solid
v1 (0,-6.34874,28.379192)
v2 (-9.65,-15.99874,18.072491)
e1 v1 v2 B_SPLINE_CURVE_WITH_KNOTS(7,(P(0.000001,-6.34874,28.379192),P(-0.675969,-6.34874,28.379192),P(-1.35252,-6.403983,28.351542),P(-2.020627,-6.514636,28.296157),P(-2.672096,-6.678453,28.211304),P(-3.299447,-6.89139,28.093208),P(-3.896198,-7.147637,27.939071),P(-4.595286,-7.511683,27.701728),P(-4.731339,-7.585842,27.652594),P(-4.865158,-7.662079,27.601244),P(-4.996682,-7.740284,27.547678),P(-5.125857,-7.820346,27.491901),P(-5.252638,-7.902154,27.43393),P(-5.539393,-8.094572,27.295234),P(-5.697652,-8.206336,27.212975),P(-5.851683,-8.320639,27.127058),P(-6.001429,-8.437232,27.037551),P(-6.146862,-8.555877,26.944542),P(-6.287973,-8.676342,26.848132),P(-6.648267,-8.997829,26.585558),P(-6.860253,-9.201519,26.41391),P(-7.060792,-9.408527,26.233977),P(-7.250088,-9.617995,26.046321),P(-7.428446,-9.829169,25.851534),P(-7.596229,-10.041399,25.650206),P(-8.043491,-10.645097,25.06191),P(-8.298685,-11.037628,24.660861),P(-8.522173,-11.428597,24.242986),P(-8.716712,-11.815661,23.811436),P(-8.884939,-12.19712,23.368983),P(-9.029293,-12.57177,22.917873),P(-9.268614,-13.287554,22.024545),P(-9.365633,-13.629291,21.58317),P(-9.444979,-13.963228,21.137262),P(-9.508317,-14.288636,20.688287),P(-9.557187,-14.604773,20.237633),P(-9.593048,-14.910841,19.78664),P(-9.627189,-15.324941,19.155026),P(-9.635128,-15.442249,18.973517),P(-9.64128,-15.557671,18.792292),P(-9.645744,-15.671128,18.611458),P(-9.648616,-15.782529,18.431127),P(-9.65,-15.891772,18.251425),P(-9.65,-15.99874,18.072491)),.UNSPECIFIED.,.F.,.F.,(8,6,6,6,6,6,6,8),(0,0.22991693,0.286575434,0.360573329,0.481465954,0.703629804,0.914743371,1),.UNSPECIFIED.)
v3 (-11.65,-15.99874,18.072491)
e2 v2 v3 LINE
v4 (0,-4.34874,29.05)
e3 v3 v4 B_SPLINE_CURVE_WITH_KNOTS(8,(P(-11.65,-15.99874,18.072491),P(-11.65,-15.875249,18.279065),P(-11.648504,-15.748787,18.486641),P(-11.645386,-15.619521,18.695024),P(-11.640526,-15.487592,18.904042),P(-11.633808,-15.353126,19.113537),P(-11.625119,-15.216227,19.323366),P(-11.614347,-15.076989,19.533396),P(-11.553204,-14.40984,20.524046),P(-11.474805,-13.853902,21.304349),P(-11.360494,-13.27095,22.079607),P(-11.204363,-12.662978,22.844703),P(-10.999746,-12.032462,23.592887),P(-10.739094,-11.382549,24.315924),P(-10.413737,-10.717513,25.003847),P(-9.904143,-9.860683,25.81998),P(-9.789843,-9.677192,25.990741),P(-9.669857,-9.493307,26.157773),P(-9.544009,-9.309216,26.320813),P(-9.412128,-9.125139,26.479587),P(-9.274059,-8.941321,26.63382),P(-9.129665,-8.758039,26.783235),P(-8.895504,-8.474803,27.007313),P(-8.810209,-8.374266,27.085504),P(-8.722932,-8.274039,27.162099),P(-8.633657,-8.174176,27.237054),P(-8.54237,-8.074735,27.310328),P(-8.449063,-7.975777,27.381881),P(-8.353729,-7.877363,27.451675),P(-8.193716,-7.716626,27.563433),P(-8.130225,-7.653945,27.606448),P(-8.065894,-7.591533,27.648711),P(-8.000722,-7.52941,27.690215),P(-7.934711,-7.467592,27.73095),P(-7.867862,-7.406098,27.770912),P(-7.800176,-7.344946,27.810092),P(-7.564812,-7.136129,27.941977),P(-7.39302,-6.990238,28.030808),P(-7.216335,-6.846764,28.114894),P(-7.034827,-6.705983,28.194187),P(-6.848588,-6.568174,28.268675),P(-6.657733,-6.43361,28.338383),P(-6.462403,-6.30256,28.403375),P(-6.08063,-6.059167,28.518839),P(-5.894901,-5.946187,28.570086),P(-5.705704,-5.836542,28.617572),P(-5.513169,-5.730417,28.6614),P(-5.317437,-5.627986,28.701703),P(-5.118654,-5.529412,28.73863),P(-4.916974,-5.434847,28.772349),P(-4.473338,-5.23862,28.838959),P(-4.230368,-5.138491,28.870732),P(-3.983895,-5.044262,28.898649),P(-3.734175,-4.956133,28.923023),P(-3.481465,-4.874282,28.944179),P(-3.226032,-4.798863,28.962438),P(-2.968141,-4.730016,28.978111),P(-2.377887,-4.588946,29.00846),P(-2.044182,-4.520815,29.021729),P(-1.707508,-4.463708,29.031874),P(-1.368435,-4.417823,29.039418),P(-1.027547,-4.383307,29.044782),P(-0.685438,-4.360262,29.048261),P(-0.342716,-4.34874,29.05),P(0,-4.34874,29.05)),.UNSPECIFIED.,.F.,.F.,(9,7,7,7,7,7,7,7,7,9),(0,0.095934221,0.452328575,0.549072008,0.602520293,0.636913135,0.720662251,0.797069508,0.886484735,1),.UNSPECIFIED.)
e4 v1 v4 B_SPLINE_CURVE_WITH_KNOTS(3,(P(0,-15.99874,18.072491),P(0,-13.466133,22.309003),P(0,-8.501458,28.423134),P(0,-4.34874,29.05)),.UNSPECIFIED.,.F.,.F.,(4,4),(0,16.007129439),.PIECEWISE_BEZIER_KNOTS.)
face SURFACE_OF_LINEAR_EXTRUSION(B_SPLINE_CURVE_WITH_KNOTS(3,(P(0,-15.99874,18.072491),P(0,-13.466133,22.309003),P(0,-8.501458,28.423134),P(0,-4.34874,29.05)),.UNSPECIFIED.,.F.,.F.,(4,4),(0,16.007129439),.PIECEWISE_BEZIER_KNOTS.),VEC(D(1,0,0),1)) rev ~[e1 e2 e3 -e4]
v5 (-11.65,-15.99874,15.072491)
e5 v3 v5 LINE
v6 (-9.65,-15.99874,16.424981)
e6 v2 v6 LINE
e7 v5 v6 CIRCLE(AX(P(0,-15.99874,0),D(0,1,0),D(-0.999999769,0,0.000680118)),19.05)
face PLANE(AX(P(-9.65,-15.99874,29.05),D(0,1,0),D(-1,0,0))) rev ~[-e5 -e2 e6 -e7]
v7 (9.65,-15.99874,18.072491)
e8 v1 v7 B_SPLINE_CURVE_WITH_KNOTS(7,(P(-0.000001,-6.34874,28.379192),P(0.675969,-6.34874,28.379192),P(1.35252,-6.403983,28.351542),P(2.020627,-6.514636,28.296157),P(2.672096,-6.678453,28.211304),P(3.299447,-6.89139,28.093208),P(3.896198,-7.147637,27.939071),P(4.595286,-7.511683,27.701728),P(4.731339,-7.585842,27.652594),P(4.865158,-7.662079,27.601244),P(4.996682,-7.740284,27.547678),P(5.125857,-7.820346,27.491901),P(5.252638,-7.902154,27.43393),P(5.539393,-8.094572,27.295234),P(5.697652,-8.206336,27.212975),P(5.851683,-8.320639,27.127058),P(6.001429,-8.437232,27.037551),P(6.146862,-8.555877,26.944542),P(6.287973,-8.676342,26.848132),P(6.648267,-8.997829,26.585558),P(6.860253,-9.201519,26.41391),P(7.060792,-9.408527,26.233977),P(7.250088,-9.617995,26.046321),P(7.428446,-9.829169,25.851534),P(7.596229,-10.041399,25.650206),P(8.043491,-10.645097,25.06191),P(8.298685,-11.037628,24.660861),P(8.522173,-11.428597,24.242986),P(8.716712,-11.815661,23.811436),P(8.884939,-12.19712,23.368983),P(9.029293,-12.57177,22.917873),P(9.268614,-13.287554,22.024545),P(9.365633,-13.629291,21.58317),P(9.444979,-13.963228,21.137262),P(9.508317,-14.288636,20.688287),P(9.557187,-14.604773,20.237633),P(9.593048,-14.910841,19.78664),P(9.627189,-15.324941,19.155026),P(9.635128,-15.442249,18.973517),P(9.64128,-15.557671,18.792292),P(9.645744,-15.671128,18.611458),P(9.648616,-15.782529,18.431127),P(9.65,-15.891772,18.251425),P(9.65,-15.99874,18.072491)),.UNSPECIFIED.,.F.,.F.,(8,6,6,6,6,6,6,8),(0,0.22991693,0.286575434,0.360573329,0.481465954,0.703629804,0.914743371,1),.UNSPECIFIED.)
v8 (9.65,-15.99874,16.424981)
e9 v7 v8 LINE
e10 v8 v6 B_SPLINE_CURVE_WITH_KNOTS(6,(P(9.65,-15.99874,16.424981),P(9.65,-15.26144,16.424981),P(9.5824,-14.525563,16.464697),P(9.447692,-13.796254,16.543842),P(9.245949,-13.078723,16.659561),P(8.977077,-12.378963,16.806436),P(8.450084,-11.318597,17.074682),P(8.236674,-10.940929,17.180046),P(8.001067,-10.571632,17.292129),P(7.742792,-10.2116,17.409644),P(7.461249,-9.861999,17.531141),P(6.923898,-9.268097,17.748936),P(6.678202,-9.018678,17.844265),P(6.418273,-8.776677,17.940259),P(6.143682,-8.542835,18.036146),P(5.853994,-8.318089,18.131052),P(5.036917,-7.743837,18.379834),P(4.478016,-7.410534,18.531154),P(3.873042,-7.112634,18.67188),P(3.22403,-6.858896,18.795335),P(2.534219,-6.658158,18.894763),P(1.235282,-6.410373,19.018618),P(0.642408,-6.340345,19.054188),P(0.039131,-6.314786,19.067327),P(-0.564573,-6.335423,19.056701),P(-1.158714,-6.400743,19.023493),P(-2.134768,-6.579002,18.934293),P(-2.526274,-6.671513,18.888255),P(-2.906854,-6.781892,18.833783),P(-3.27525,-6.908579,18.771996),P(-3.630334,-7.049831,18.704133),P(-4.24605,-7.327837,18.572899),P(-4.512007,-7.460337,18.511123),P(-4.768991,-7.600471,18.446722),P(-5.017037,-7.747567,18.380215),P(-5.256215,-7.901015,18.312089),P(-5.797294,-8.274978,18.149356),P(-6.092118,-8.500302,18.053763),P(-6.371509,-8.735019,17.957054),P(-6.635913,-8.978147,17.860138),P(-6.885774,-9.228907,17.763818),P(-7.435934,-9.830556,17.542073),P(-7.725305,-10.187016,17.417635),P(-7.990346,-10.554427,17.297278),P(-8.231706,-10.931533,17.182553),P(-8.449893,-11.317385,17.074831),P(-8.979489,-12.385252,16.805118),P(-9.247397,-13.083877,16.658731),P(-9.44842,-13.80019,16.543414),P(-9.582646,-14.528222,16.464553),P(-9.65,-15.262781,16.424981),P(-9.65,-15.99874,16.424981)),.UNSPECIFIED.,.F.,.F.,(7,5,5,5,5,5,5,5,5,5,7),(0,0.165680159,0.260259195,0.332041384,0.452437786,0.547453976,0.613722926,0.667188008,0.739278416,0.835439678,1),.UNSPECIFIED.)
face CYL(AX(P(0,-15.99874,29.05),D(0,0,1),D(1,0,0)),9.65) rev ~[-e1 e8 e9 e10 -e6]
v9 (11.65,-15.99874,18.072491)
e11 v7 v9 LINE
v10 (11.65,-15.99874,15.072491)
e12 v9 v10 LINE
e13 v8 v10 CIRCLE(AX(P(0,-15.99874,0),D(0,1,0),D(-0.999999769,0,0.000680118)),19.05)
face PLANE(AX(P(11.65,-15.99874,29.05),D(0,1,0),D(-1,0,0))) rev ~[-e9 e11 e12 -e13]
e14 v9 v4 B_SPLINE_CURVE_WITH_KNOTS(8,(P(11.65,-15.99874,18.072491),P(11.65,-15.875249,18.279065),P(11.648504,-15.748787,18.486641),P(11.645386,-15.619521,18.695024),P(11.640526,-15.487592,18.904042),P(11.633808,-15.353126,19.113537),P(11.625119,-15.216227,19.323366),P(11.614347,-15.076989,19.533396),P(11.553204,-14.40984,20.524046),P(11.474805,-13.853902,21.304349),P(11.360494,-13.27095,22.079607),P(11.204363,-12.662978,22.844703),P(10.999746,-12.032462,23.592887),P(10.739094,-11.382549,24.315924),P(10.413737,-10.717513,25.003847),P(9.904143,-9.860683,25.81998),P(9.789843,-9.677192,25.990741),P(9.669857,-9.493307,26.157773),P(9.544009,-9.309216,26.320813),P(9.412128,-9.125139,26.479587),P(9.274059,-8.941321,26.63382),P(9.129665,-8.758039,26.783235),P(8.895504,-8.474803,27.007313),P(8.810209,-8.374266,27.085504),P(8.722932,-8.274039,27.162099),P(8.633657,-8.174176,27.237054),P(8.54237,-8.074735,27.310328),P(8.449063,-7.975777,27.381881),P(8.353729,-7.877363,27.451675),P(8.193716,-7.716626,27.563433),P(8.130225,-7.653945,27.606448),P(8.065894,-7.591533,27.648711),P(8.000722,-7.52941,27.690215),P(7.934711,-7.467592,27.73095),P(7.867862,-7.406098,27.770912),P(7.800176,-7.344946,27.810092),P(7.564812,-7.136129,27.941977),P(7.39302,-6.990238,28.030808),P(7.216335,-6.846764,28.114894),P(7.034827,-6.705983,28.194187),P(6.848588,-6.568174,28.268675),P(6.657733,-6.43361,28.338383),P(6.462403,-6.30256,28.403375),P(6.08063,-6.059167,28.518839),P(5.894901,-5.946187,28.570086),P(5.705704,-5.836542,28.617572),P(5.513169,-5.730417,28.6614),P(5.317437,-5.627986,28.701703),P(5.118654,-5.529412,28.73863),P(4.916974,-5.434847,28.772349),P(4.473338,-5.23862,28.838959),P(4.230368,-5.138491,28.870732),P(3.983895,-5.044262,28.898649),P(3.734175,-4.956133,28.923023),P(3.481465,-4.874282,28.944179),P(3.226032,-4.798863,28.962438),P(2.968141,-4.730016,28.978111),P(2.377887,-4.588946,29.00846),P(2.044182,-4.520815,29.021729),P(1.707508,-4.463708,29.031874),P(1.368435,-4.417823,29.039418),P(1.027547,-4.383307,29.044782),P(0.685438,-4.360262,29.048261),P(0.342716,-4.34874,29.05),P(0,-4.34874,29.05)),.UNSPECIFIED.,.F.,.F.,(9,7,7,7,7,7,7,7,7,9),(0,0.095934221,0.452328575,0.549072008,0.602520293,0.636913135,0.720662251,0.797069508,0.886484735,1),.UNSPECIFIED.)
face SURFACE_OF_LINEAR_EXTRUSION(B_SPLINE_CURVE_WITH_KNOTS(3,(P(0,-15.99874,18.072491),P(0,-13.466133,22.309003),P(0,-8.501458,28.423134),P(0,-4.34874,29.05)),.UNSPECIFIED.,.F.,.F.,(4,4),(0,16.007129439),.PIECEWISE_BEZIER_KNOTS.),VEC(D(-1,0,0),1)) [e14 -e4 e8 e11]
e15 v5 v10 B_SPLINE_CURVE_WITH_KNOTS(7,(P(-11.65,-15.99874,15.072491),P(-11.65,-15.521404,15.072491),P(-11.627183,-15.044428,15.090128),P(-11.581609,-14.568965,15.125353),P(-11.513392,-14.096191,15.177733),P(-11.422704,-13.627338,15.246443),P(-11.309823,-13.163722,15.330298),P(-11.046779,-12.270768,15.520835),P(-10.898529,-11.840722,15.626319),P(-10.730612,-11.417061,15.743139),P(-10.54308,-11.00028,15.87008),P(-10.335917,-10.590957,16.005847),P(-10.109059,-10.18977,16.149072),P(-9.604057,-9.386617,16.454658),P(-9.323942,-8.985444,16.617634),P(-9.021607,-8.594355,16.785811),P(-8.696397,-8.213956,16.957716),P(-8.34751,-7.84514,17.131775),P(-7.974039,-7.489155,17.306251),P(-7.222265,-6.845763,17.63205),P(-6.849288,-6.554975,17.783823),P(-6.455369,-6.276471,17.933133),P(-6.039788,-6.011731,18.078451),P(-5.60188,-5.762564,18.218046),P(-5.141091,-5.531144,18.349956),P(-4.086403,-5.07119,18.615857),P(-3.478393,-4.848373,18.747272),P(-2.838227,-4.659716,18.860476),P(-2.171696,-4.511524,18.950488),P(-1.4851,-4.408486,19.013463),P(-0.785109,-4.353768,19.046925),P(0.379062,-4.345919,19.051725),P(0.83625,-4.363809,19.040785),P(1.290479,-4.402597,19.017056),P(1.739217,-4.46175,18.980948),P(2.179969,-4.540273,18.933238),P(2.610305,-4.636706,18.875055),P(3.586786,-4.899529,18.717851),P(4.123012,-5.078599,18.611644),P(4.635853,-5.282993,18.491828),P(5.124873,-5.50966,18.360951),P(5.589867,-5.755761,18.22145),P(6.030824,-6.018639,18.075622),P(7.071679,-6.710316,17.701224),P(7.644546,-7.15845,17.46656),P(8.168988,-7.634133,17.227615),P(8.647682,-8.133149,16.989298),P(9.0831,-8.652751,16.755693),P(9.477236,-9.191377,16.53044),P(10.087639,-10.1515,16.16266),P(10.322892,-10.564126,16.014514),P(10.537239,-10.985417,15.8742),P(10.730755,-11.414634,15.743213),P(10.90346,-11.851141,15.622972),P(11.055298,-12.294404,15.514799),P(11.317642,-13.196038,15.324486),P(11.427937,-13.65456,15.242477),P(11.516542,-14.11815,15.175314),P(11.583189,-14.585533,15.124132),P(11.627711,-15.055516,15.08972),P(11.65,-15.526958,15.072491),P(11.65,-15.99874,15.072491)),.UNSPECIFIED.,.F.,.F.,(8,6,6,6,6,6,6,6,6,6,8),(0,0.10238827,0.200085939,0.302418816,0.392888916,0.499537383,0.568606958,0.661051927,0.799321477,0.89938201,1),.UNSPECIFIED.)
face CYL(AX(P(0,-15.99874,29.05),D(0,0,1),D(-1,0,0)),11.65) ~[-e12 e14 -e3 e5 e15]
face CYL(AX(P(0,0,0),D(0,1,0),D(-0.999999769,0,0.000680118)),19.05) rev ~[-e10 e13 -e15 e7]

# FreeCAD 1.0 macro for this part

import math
import FreeCAD as App
import Part
import Sketcher

doc = App.newDocument("Part")
body = doc.addObject("PartDesign::Body", "Body")

sketch1 = body.newObject("Sketcher::SketchObject", "Sketch")
sketch1.AttachmentSupport = (doc.getObject("XZ_Plane"), [""])
sketch1.MapMode = "FlatFace"
sketch1.addGeometry([
    Part.ArcOfCircle(Part.Circle(App.Vector(0, 0, 0), App.Vector(0, 0, 1), 19), math.radians(0), math.radians(180)),
    Part.LineSegment(App.Vector(19, 0, 0), App.Vector(19, 29, 0)),
    Part.LineSegment(App.Vector(19, 29, 0), App.Vector(-19, 29, 0)),
    Part.LineSegment(App.Vector(-19, 29, 0), App.Vector(-19, 0, 0)),
], False)
sketch1.addConstraint([
    Sketcher.Constraint("Coincident", 0, 1, 1, 1),
    Sketcher.Constraint("Coincident", 1, 2, 2, 1),
    Sketcher.Constraint("Coincident", 2, 2, 3, 1),
    Sketcher.Constraint("Coincident", 3, 2, 0, 2),
    Sketcher.Constraint("Vertical", 1),
    Sketcher.Constraint("Horizontal", 2),
    Sketcher.Constraint("Vertical", 3),
    Sketcher.Constraint("Coincident", 0, 3, -1, 1),
    Sketcher.Constraint("Horizontal", 0, 1, 3, 2),
    Sketcher.Constraint("Radius", 0, 19.05),
    Sketcher.Constraint("DistanceY", -1, 1, 1, 2, 29.05),
    Sketcher.Constraint("DistanceY", 1, 1, 1, 2, 29.037044),
])
pad1 = body.newObject("PartDesign::Pad", "Pad")
pad1.Profile = sketch1
pad1.Length = 25

sketch2 = body.newObject("Sketcher::SketchObject", "Sketch001")
sketch2.AttachmentSupport = (doc.getObject("XY_Plane"), [""])
sketch2.MapMode = "FlatFace"
sketch2.AttachmentOffset = App.Placement(App.Vector(0, 0, 29.05), App.Rotation())
sketch2.addGeometry([
    Part.LineSegment(App.Vector(-19, 0, 0), App.Vector(-19, -25, 0)),
    Part.LineSegment(App.Vector(-19, -25, 0), App.Vector(19, -25, 0)),
    Part.LineSegment(App.Vector(19, -25, 0), App.Vector(19, 0, 0)),
    Part.LineSegment(App.Vector(19, 0, 0), App.Vector(-19, 0, 0)),
    Part.LineSegment(App.Vector(-9.6, -16, 0), App.Vector(-11.7, -16, 0)),
    Part.ArcOfCircle(Part.Circle(App.Vector(0, -16, 0), App.Vector(0, 0, 1), 11.7), math.radians(0), math.radians(180)),
    Part.LineSegment(App.Vector(11.7, -16, 0), App.Vector(9.6, -16, 0)),
    Part.ArcOfCircle(Part.Circle(App.Vector(0, -16, 0), App.Vector(0, 0, 1), 9.6), math.radians(0), math.radians(180)),
], False)
sketch2.addConstraint([
    Sketcher.Constraint("Coincident", 0, 2, 1, 1),
    Sketcher.Constraint("Coincident", 1, 2, 2, 1),
    Sketcher.Constraint("Coincident", 2, 2, 3, 1),
    Sketcher.Constraint("Coincident", 3, 2, 0, 1),
    Sketcher.Constraint("Coincident", 4, 2, 5, 2),
    Sketcher.Constraint("Coincident", 5, 1, 6, 1),
    Sketcher.Constraint("Coincident", 6, 2, 7, 1),
    Sketcher.Constraint("Coincident", 7, 2, 4, 1),
    Sketcher.Constraint("Vertical", 0),
    Sketcher.Constraint("Horizontal", 1),
    Sketcher.Constraint("Vertical", 2),
    Sketcher.Constraint("Horizontal", 3),
    Sketcher.Constraint("Horizontal", 4),
    Sketcher.Constraint("Horizontal", 6),
    Sketcher.Constraint("Coincident", 7, 3, 5, 3),
    Sketcher.Constraint("Symmetric", 2, 2, 3, 2, -1, 1),
    Sketcher.Constraint("Symmetric", 4, 2, 5, 1, -2),
    Sketcher.Constraint("Horizontal", 7, 3, 4, 2),
    Sketcher.Constraint("DistanceX", 4, 2, 4, 1, 2.0),
    Sketcher.Constraint("DistanceY", 0, 2, 0, 1, 25.0),
    Sketcher.Constraint("Radius", 5, 11.65),
    Sketcher.Constraint("DistanceX", 1, 1, 1, 2, 38.099991),
    Sketcher.Constraint("DistanceY", 5, 3, -1, 1, 15.99874),
])
pocket1 = body.newObject("PartDesign::Pocket", "Pocket")
pocket1.Profile = sketch2
pocket1.Type = "ThroughAll"

sketch3 = body.newObject("Sketcher::SketchObject", "Sketch002")
sketch3.AttachmentSupport = (doc.getObject("YZ_Plane"), [""])
sketch3.MapMode = "FlatFace"
sketch3.addGeometry([
    Part.LineSegment(App.Vector(-15.99874, 29.05, 0), App.Vector(-15.99874, 18.072491, 0)),
    Part.BSplineCurve([App.Vector(-15.99874, 18.072491, 0), App.Vector(-13.466133, 22.309003, 0), App.Vector(-8.501458, 28.423134, 0), App.Vector(-4.34874, 29.05, 0)], [4, 4], [0, 16.007129439], False, 3, [1, 1, 1, 1], False),
    Part.LineSegment(App.Vector(-4.34874, 29.05, 0), App.Vector(-15.99874, 29.05, 0)),
], False)
sketch3.addConstraint([
    Sketcher.Constraint("Block", 1),
    Sketcher.Constraint("Coincident", 0, 2, 1, 1),
    Sketcher.Constraint("Coincident", 1, 2, 2, 1),
    Sketcher.Constraint("Coincident", 2, 2, 0, 1),
    Sketcher.Constraint("Vertical", 0),
    Sketcher.Constraint("Horizontal", 2),
])
pocket2 = body.newObject("PartDesign::Pocket", "Pocket001")
pocket2.Profile = sketch3
pocket2.Type = "ThroughAll"
pocket2.Midplane = True

doc.recompute()
